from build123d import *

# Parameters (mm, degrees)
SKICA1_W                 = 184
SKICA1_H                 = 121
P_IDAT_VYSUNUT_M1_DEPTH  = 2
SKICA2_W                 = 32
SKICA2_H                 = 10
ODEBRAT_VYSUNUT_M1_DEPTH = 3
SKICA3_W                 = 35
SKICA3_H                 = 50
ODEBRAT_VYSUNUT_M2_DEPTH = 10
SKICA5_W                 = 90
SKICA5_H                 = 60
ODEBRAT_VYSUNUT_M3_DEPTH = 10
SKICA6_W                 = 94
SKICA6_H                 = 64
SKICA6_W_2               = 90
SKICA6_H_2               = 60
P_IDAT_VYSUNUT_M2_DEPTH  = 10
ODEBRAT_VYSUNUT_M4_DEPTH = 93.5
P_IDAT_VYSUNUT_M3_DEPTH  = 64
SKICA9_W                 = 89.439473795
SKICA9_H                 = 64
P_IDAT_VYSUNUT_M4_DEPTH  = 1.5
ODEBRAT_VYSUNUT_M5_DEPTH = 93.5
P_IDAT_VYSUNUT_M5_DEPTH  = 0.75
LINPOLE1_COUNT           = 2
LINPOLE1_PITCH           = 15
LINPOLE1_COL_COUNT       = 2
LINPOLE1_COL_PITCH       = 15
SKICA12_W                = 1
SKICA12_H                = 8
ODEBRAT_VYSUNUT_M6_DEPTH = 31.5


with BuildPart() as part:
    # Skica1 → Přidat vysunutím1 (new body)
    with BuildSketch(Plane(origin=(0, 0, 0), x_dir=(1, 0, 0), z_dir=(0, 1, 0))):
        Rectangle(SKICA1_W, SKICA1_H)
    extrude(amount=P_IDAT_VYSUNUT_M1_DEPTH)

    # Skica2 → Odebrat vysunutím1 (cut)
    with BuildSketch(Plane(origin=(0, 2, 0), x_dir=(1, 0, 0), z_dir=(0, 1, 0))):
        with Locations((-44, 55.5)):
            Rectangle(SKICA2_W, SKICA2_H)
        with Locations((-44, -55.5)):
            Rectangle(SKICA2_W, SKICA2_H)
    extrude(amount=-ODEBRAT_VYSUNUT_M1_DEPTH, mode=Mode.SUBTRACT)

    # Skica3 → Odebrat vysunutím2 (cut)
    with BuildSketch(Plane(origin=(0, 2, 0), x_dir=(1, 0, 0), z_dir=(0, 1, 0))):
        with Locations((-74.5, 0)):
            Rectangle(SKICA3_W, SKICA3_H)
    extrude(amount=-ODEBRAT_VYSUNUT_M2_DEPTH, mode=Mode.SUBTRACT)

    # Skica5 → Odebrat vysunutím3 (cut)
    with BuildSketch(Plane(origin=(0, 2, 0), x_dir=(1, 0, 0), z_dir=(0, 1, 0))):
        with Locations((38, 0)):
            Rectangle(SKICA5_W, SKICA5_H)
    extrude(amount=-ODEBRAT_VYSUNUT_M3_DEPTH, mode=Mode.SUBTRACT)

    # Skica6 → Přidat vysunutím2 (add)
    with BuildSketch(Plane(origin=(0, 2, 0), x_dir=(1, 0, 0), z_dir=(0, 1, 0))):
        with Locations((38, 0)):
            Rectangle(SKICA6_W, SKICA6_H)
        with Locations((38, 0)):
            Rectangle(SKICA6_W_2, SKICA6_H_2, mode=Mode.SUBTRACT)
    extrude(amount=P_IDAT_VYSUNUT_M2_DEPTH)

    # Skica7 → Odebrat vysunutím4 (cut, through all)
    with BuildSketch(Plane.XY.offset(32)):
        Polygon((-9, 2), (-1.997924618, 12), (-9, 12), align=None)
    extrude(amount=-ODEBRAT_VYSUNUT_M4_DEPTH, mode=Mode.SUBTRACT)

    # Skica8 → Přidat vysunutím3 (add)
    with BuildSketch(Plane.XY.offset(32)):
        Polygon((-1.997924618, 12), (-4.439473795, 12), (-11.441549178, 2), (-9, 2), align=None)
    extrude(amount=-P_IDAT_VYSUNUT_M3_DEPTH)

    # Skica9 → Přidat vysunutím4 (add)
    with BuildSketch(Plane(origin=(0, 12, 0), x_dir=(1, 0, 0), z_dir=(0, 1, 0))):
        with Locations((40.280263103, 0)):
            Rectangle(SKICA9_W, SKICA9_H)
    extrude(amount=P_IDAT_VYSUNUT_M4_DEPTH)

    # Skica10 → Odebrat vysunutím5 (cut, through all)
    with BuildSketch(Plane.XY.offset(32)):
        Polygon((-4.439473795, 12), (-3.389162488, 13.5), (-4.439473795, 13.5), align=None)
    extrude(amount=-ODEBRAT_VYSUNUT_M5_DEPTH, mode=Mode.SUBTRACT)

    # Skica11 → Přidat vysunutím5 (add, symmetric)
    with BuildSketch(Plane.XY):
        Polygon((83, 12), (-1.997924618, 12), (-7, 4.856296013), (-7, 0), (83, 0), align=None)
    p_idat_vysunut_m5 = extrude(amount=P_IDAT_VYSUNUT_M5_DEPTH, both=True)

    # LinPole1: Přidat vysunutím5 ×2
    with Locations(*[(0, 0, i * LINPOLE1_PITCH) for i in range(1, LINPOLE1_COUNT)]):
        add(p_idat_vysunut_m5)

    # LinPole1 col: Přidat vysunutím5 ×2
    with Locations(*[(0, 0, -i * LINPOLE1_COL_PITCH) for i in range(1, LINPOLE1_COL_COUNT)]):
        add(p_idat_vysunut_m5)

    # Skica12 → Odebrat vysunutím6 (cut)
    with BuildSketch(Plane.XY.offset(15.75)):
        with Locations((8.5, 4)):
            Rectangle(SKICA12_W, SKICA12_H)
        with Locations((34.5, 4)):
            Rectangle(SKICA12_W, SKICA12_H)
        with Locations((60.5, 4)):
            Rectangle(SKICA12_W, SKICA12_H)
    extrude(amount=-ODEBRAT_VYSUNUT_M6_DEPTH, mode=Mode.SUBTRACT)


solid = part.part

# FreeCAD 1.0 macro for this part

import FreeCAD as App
import Part
import Sketcher
Q = App.Units.Quantity


def add_polygon(sketch, points):
    """Adds a closed chain of lines whose ends are joined by coincident constraints."""
    first, n = sketch.GeometryCount, len(points)
    for a, b in zip(points, points[1:] + points[:1]):
        sketch.addGeometry(Part.LineSegment(App.Vector(*a, 0), App.Vector(*b, 0)), False)
    for i in range(n):
        sketch.addConstraint(Sketcher.Constraint("Coincident", first + i, 2, first + (i + 1) % n, 1))

doc = App.newDocument("Part")
body = doc.addObject("PartDesign::Body", "Body")

sketch1 = doc.addObject("Sketcher::SketchObject", "Sketch")
body.addObject(sketch1)
sketch1.AttachmentSupport = (doc.XZ_Plane, [""])
sketch1.MapMode = "FlatFace"
add_polygon(sketch1, [(-92, -60), (-92, 60), (92, 60), (92, -60)])
sketch1.addConstraint([
    Sketcher.Constraint("Vertical", 0),
    Sketcher.Constraint("Horizontal", 1),
    Sketcher.Constraint("Vertical", 2),
    Sketcher.Constraint("Horizontal", 3),
    Sketcher.Constraint("Symmetric", 0, 2, 2, 2, -1, 1),
    Sketcher.Constraint("DistanceX", 1, 1, 1, 2, 184.0),
    Sketcher.Constraint("DistanceY", 0, 1, 0, 2, 121.0),
])
pad1 = doc.addObject("PartDesign::Pad", "Pad")
body.addObject(pad1)
pad1.Profile = sketch1
pad1.Length = 2
pad1.Reversed = True

sketch2 = doc.addObject("Sketcher::SketchObject", "Sketch001")
body.addObject(sketch2)
sketch2.AttachmentSupport = (doc.XZ_Plane, [""])
sketch2.MapMode = "FlatFace"
sketch2.AttachmentOffset = App.Placement(App.Vector(0, 0, -2), App.Rotation())
add_polygon(sketch2, [(-60, -60), (-60, -50), (-28, -50), (-28, -60)])
add_polygon(sketch2, [(-60, 50), (-60, 60), (-28, 60), (-28, 50)])
sketch2.addConstraint([
    Sketcher.Constraint("Vertical", 0),
    Sketcher.Constraint("Horizontal", 1),
    Sketcher.Constraint("Vertical", 2),
    Sketcher.Constraint("Horizontal", 3),
    Sketcher.Constraint("Vertical", 4),
    Sketcher.Constraint("Horizontal", 5),
    Sketcher.Constraint("Vertical", 6),
    Sketcher.Constraint("Horizontal", 7),
    Sketcher.Constraint("Symmetric", 3, 2, 4, 2, -1),
    Sketcher.Constraint("Symmetric", 1, 2, 6, 2, -1),
    Sketcher.Constraint("DistanceX", 1, 1, 1, 2, 32.0),
    Sketcher.Constraint("DistanceY", 0, 1, 0, 2, 10.0),
    Sketcher.Constraint("DistanceX", 0, 2, -1, 1, 60.0),
    Sketcher.Constraint("DistanceY", 0, 2, 4, 2, 111.0),
])
pocket1 = doc.addObject("PartDesign::Pocket", "Pocket")
body.addObject(pocket1)
pocket1.Profile = sketch2
pocket1.Length = 3
pocket1.Reversed = True

sketch3 = doc.addObject("Sketcher::SketchObject", "Sketch002")
body.addObject(sketch3)
sketch3.AttachmentSupport = (doc.XZ_Plane, [""])
sketch3.MapMode = "FlatFace"
sketch3.AttachmentOffset = App.Placement(App.Vector(0, 0, -2), App.Rotation())
add_polygon(sketch3, [(-92, -25), (-92, 25), (-57, 25), (-57, -25)])
sketch3.addConstraint([
    Sketcher.Constraint("Vertical", 0),
    Sketcher.Constraint("Horizontal", 1),
    Sketcher.Constraint("Vertical", 2),
    Sketcher.Constraint("Horizontal", 3),
    Sketcher.Constraint("DistanceX", 1, 1, 1, 2, 35.0),
    Sketcher.Constraint("DistanceY", 0, 1, 0, 2, 50.0),
    Sketcher.Constraint("DistanceX", 0, 2, -1, 1, 92.0),
    Sketcher.Constraint("DistanceY", -1, 1, 0, 2, 25.0),
])
pocket2 = doc.addObject("PartDesign::Pocket", "Pocket001")
body.addObject(pocket2)
pocket2.Profile = sketch3
pocket2.Length = 10
pocket2.Reversed = True

sketch4 = doc.addObject("Sketcher::SketchObject", "Sketch003")
body.addObject(sketch4)
sketch4.AttachmentSupport = (doc.XZ_Plane, [""])
sketch4.MapMode = "FlatFace"
sketch4.AttachmentOffset = App.Placement(App.Vector(0, 0, -2), App.Rotation())
add_polygon(sketch4, [(-7, -30), (-7, 30), (83, 30), (83, -30)])
sketch4.addConstraint([
    Sketcher.Constraint("Vertical", 0),
    Sketcher.Constraint("Horizontal", 1),
    Sketcher.Constraint("Vertical", 2),
    Sketcher.Constraint("Horizontal", 3),
    Sketcher.Constraint("DistanceX", 1, 1, 1, 2, 90.0),
    Sketcher.Constraint("DistanceY", 0, 1, 0, 2, 60.0),
    Sketcher.Constraint("DistanceX", 0, 2, -1, 1, 7.0),
    Sketcher.Constraint("DistanceY", -1, 1, 0, 2, 30.0),
])
pocket3 = doc.addObject("PartDesign::Pocket", "Pocket002")
body.addObject(pocket3)
pocket3.Profile = sketch4
pocket3.Length = 10
pocket3.Reversed = True

sketch5 = doc.addObject("Sketcher::SketchObject", "Sketch004")
body.addObject(sketch5)
sketch5.AttachmentSupport = (doc.XZ_Plane, [""])
sketch5.MapMode = "FlatFace"
sketch5.AttachmentOffset = App.Placement(App.Vector(0, 0, -2), App.Rotation())
add_polygon(sketch5, [(-9, -32), (-9, 32), (85, 32), (85, -32)])
add_polygon(sketch5, [(83, 30), (-7, 30), (-7, -30), (83, -30)])
sketch5.addConstraint([
    Sketcher.Constraint("Vertical", 0),
    Sketcher.Constraint("Horizontal", 1),
    Sketcher.Constraint("Vertical", 2),
    Sketcher.Constraint("Horizontal", 3),
    Sketcher.Constraint("Horizontal", 4),
    Sketcher.Constraint("Vertical", 5),
    Sketcher.Constraint("Horizontal", 6),
    Sketcher.Constraint("Vertical", 7),
    Sketcher.Constraint("DistanceX", 1, 1, 1, 2, 94.0),
    Sketcher.Constraint("DistanceX", 4, 2, 4, 1, 90.0),
    Sketcher.Constraint("DistanceY", 0, 1, 0, 2, 64.0),
    Sketcher.Constraint("DistanceY", 5, 2, 5, 1, 60.0),
    Sketcher.Constraint("DistanceX", 0, 2, -1, 1, 9.0),
    Sketcher.Constraint("DistanceY", -1, 1, 0, 2, 32.0),
    Sketcher.Constraint("DistanceX", 4, 2, -1, 1, 7.0),
    Sketcher.Constraint("DistanceY", -1, 1, 4, 2, 30.0),
])
pad2 = doc.addObject("PartDesign::Pad", "Pad001")
body.addObject(pad2)
pad2.Profile = sketch5
pad2.Length = 10
pad2.Reversed = True

sketch6 = doc.addObject("Sketcher::SketchObject", "Sketch005")
body.addObject(sketch6)
sketch6.AttachmentSupport = (doc.XY_Plane, [""])
sketch6.MapMode = "FlatFace"
sketch6.AttachmentOffset = App.Placement(App.Vector(0, 0, 32), App.Rotation())
add_polygon(sketch6, [(-9, 2), (-2, 12), (-9, 12)])
sketch6.addConstraint([
    Sketcher.Constraint("Horizontal", 1),
    Sketcher.Constraint("Vertical", 2),
    Sketcher.Constraint("DistanceY", 2, 2, 2, 1, 10.0),
    Sketcher.Constraint("Angle", 0, Q("55 deg")),
    Sketcher.Constraint("DistanceY", -1, 1, 0, 2, 12.0),
    Sketcher.Constraint("DistanceX", 1, 2, -1, 1, 9.0),
])
pocket4 = doc.addObject("PartDesign::Pocket", "Pocket003")
body.addObject(pocket4)
pocket4.Profile = sketch6
pocket4.Type = "ThroughAll"

sketch7 = doc.addObject("Sketcher::SketchObject", "Sketch006")
body.addObject(sketch7)
sketch7.AttachmentSupport = (doc.XY_Plane, [""])
sketch7.MapMode = "FlatFace"
sketch7.AttachmentOffset = App.Placement(App.Vector(0, 0, 32), App.Rotation())
add_polygon(sketch7, [(-2, 12), (-4.4, 12), (-11.4, 2), (-9, 2)])
sketch7.addConstraint([
    Sketcher.Constraint("Horizontal", 0),
    Sketcher.Constraint("Horizontal", 2),
    Sketcher.Constraint("Parallel", 1, 3),
    Sketcher.Constraint("Angle", 1, Q("-125 deg")),
    Sketcher.Constraint("DistanceY", -1, 1, 0, 2, 12.0),
    Sketcher.Constraint("DistanceY", -1, 1, 1, 2, 2.0),
    Sketcher.Constraint("DistanceX", 2, 2, -1, 1, 9.0),
    Sketcher.Constraint("DistanceX", 0, 2, 0, 1, 2.441549),
])
pad3 = doc.addObject("PartDesign::Pad", "Pad002")
body.addObject(pad3)
pad3.Profile = sketch7
pad3.Length = 64
pad3.Reversed = True

sketch8 = doc.addObject("Sketcher::SketchObject", "Sketch007")
body.addObject(sketch8)
sketch8.AttachmentSupport = (doc.XZ_Plane, [""])
sketch8.MapMode = "FlatFace"
sketch8.AttachmentOffset = App.Placement(App.Vector(0, 0, -12), App.Rotation())
add_polygon(sketch8, [(-4, -32), (-4, 32), (85, 32), (85, -32)])
sketch8.addConstraint([
    Sketcher.Constraint("Vertical", 0),
    Sketcher.Constraint("Horizontal", 1),
    Sketcher.Constraint("Vertical", 2),
    Sketcher.Constraint("Horizontal", 3),
    Sketcher.Constraint("DistanceY", 0, 1, 0, 2, 64.0),
    Sketcher.Constraint("DistanceY", -1, 1, 0, 2, 32.0),
    Sketcher.Constraint("DistanceX", -1, 1, 1, 2, 85.0),
    Sketcher.Constraint("DistanceX", 1, 1, 1, 2, 89.439474),
])
pad4 = doc.addObject("PartDesign::Pad", "Pad003")
body.addObject(pad4)
pad4.Profile = sketch8
pad4.Length = 1.5
pad4.Reversed = True

sketch9 = doc.addObject("Sketcher::SketchObject", "Sketch008")
body.addObject(sketch9)
sketch9.AttachmentSupport = (doc.XY_Plane, [""])
sketch9.MapMode = "FlatFace"
sketch9.AttachmentOffset = App.Placement(App.Vector(0, 0, 32), App.Rotation())
add_polygon(sketch9, [(-4.4, 12), (-3.4, 13.5), (-4.4, 13.5)])
sketch9.addConstraint([
    Sketcher.Constraint("Horizontal", 1),
    Sketcher.Constraint("Vertical", 2),
    Sketcher.Constraint("Angle", 0, Q("55 deg")),
    Sketcher.Constraint("DistanceY", 2, 2, 2, 1, 1.5),
    Sketcher.Constraint("DistanceY", -1, 1, 2, 2, 12.0),
    Sketcher.Constraint("DistanceX", 0, 2, -1, 1, 3.389162),
])
pocket5 = doc.addObject("PartDesign::Pocket", "Pocket004")
body.addObject(pocket5)
pocket5.Profile = sketch9
pocket5.Type = "ThroughAll"

sketch10 = doc.addObject("Sketcher::SketchObject", "Sketch009")
body.addObject(sketch10)
sketch10.AttachmentSupport = (doc.XY_Plane, [""])
sketch10.MapMode = "FlatFace"
add_polygon(sketch10, [(83, 12), (-2, 12), (-7, 4.9), (-7, 0), (83, 0)])
sketch10.addConstraint([
    Sketcher.Constraint("Horizontal", 0),
    Sketcher.Constraint("Vertical", 2),
    Sketcher.Constraint("Horizontal", 3),
    Sketcher.Constraint("Vertical", 4),
    Sketcher.Constraint("PointOnObject", 2, 2, -1),
    Sketcher.Constraint("DistanceX", 3, 1, 3, 2, 90.0),
    Sketcher.Constraint("DistanceY", 4, 1, 4, 2, 12.0),
    Sketcher.Constraint("Angle", 1, Q("-125 deg")),
    Sketcher.Constraint("DistanceX", 1, 2, -1, 1, 7.0),
    Sketcher.Constraint("DistanceX", 0, 2, 0, 1, 84.997925),
])
pad5 = doc.addObject("PartDesign::Pad", "Pad004")
body.addObject(pad5)
pad5.Profile = sketch10
pad5.Length = 1.5
pad5.Midplane = True
doc.recompute()

linearpattern = doc.addObject("PartDesign::LinearPattern", "LinearPattern")
body.addObject(linearpattern)
linearpattern.Originals = [pad5]
linearpattern.Direction = (doc.Z_Axis, [""])
linearpattern.Mode = "offset"
linearpattern.Offset = 15
linearpattern.Occurrences = 2
body.Tip = linearpattern
doc.recompute()

linearpattern2 = doc.addObject("PartDesign::LinearPattern", "LinearPattern001")
body.addObject(linearpattern2)
linearpattern2.Originals = [pad5]
linearpattern2.Direction = (doc.Z_Axis, [""])
linearpattern2.Mode = "offset"
linearpattern2.Offset = 15
linearpattern2.Occurrences = 2
linearpattern2.Reversed = True
body.Tip = linearpattern2

sketch11 = doc.addObject("Sketcher::SketchObject", "Sketch010")
body.addObject(sketch11)
sketch11.AttachmentSupport = (doc.XY_Plane, [""])
sketch11.MapMode = "FlatFace"
sketch11.AttachmentOffset = App.Placement(App.Vector(0, 0, 15.75), App.Rotation())
add_polygon(sketch11, [(8, 8), (8, 0), (9, 0), (9, 8)])
add_polygon(sketch11, [(34, 8), (34, 0), (35, 0), (35, 8)])
add_polygon(sketch11, [(60, 8), (60, 0), (61, 0), (61, 8)])
sketch11.addConstraint([
    Sketcher.Constraint("Vertical", 0),
    Sketcher.Constraint("Horizontal", 1),
    Sketcher.Constraint("Vertical", 2),
    Sketcher.Constraint("Horizontal", 3),
    Sketcher.Constraint("Vertical", 4),
    Sketcher.Constraint("Horizontal", 5),
    Sketcher.Constraint("Vertical", 6),
    Sketcher.Constraint("Horizontal", 7),
    Sketcher.Constraint("Vertical", 8),
    Sketcher.Constraint("Horizontal", 9),
    Sketcher.Constraint("Vertical", 10),
    Sketcher.Constraint("Horizontal", 11),
    Sketcher.Constraint("PointOnObject", 0, 2, -1),
    Sketcher.Constraint("PointOnObject", 4, 2, -1),
    Sketcher.Constraint("PointOnObject", 8, 2, -1),
    Sketcher.Constraint("Horizontal", 3, 2, 6, 2),
    Sketcher.Constraint("Horizontal", 7, 2, 10, 2),
    Sketcher.Constraint("Equal", 3, 5),
    Sketcher.Constraint("Equal", 7, 9),
    Sketcher.Constraint("DistanceX", 1, 1, 1, 2, 1.0),
    Sketcher.Constraint("DistanceY", 0, 2, 0, 1, 8.0),
    Sketcher.Constraint("DistanceX", -1, 1, 0, 2, 8.0),
    Sketcher.Constraint("DistanceX", -1, 1, 4, 2, 34.0),
    Sketcher.Constraint("DistanceX", -1, 1, 8, 2, 60.0),
])
pocket6 = doc.addObject("PartDesign::Pocket", "Pocket005")
body.addObject(pocket6)
pocket6.Profile = sketch11
pocket6.Length = 31.5

doc.recompute()
